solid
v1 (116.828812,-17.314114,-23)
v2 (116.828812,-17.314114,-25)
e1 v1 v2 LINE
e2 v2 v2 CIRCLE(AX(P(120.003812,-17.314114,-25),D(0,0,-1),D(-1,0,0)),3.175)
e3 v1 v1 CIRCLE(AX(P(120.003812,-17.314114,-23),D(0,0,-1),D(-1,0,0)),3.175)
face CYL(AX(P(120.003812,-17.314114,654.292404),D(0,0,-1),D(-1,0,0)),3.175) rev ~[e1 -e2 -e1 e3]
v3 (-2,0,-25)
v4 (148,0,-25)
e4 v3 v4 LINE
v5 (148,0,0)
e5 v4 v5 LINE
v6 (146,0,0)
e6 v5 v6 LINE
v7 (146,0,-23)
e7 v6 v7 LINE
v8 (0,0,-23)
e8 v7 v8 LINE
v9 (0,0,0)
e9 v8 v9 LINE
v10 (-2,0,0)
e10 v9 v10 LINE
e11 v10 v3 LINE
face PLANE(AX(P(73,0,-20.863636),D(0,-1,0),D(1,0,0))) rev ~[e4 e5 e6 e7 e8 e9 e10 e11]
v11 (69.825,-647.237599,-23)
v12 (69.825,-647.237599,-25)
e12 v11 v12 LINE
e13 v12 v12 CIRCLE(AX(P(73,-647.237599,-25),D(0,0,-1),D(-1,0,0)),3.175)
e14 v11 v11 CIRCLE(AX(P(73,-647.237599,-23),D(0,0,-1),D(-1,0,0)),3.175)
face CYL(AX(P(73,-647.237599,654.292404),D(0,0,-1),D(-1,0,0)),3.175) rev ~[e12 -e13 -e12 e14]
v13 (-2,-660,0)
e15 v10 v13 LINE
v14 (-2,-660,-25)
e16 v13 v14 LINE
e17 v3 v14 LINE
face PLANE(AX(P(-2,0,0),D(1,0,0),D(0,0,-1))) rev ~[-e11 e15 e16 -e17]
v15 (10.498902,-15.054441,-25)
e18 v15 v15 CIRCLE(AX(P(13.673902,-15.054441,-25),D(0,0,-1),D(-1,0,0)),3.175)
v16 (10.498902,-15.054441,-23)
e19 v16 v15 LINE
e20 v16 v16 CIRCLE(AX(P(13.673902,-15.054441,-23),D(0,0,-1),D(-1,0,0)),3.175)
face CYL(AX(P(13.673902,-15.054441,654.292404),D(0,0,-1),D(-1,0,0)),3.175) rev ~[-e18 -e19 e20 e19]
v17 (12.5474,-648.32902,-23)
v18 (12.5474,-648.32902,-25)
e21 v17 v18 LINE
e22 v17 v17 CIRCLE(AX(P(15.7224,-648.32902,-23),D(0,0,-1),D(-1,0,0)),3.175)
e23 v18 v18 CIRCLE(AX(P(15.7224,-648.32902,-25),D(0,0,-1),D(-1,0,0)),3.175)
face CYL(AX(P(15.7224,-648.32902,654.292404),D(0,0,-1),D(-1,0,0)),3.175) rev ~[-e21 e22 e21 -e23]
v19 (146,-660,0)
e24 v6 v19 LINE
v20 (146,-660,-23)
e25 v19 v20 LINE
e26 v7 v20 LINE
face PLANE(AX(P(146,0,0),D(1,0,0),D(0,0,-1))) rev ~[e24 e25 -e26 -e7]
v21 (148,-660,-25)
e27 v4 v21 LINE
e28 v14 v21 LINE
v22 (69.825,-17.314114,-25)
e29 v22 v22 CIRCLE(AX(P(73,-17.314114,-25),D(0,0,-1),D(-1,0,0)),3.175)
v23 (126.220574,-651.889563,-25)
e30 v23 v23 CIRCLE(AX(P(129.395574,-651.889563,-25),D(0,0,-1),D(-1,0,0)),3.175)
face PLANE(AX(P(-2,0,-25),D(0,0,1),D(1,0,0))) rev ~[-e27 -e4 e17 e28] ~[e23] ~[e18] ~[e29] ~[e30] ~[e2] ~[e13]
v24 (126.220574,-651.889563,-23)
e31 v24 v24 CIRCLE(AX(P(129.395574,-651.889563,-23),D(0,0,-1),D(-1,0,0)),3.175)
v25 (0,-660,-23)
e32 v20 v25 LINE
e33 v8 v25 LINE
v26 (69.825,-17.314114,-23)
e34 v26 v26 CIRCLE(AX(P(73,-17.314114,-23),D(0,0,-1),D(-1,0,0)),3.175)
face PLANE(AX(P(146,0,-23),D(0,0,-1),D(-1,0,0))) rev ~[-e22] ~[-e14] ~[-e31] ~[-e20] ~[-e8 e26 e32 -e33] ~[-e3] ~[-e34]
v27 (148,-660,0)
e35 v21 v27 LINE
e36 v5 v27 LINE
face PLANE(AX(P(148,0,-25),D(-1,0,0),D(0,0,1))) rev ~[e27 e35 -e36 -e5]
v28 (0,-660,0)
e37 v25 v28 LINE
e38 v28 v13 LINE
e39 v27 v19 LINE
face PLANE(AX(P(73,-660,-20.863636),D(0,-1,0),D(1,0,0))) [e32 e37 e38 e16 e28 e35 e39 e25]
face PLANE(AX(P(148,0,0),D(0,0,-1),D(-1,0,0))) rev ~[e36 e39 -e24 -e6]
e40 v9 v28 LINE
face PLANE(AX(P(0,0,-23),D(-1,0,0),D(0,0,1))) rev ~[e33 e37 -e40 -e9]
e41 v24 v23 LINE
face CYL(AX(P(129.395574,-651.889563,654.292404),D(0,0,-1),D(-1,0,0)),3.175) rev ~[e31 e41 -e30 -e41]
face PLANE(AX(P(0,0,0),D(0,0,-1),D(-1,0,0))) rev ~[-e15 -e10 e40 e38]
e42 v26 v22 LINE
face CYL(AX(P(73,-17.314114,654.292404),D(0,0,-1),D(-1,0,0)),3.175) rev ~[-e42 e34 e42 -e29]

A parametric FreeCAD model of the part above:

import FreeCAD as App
import Part
import Sketcher

V = App.Vector
Q = App.Units.Quantity

doc = App.newDocument("Part")
body = doc.addObject("PartDesign::Body", "Body")

# Sketch on XZ plane
sketch1 = body.newObject("Sketcher::SketchObject", "Sketch")
sketch1.AttachmentSupport = (doc.getObject("XZ_Plane"), [""])
sketch1.MapMode = "FlatFace"
sketch1.addGeometry(Part.LineSegment(V(0, -23, 0), V(0, 0, 0)), False)
sketch1.addGeometry(Part.LineSegment(V(0, 0, 0), V(-2, 0, 0)), False)
sketch1.addGeometry(Part.LineSegment(V(-2, 0, 0), V(-2, -25, 0)), False)
sketch1.addGeometry(Part.LineSegment(V(-2, -25, 0), V(148, -25, 0)), False)
sketch1.addGeometry(Part.LineSegment(V(148, -25, 0), V(148, 0, 0)), False)
sketch1.addGeometry(Part.LineSegment(V(148, 0, 0), V(146, 0, 0)), False)
sketch1.addGeometry(Part.LineSegment(V(146, 0, 0), V(146, -23, 0)), False)
sketch1.addGeometry(Part.LineSegment(V(146, -23, 0), V(0, -23, 0)), False)
sketch1.addConstraint(Sketcher.Constraint("Coincident", 0, 2, 1, 1))
sketch1.addConstraint(Sketcher.Constraint("Coincident", 1, 2, 2, 1))
sketch1.addConstraint(Sketcher.Constraint("Coincident", 2, 2, 3, 1))
sketch1.addConstraint(Sketcher.Constraint("Coincident", 3, 2, 4, 1))
sketch1.addConstraint(Sketcher.Constraint("Coincident", 4, 2, 5, 1))
sketch1.addConstraint(Sketcher.Constraint("Coincident", 5, 2, 6, 1))
sketch1.addConstraint(Sketcher.Constraint("Coincident", 6, 2, 7, 1))
sketch1.addConstraint(Sketcher.Constraint("Coincident", 7, 2, 0, 1))
sketch1.addConstraint(Sketcher.Constraint("Vertical", 0))
sketch1.addConstraint(Sketcher.Constraint("Horizontal", 1))
sketch1.addConstraint(Sketcher.Constraint("Vertical", 2))
sketch1.addConstraint(Sketcher.Constraint("Horizontal", 3))
sketch1.addConstraint(Sketcher.Constraint("Vertical", 4))
sketch1.addConstraint(Sketcher.Constraint("Horizontal", 5))
sketch1.addConstraint(Sketcher.Constraint("Vertical", 6))
sketch1.addConstraint(Sketcher.Constraint("Horizontal", 7))
sketch1.addConstraint(Sketcher.Constraint("Coincident", 0, 2, -1, 1))
sketch1.addConstraint(Sketcher.Constraint("PointOnObject", 4, 2, -1))
sketch1.addConstraint(Sketcher.Constraint("Equal", 1, 5))
sketch1.addConstraint(Sketcher.Constraint("DistanceX", 1, 2, 1, 1, Q("2 mm")))
sketch1.addConstraint(Sketcher.Constraint("DistanceX", 3, 1, 3, 2, Q("150 mm")))
sketch1.addConstraint(Sketcher.Constraint("DistanceY", 0, 1, 0, 2, Q("23 mm")))
sketch1.addConstraint(Sketcher.Constraint("DistanceY", 2, 2, 2, 1, Q("25 mm")))
pad1 = body.newObject("PartDesign::Pad", "Pad")
pad1.Profile = sketch1
pad1.Length = 660

# Sketch on XY plane
sketch2 = body.newObject("Sketcher::SketchObject", "Sketch001")
sketch2.AttachmentSupport = (doc.getObject("XY_Plane"), [""])
sketch2.MapMode = "FlatFace"
sketch2.AttachmentOffset = App.Placement(V(0, 0, -23), App.Rotation())
sketch2.addGeometry(Part.Circle(V(15.7, -648.3, 0), V(0, 0, 1), 3.2), False)
sketch2.addGeometry(Part.Circle(V(73, -647.2, 0), V(0, 0, 1), 3.2), False)
sketch2.addGeometry(Part.Circle(V(129.4, -651.9, 0), V(0, 0, 1), 3.2), False)
sketch2.addGeometry(Part.Circle(V(120, -17.3, 0), V(0, 0, 1), 3.2), False)
sketch2.addGeometry(Part.Circle(V(73, -17.3, 0), V(0, 0, 1), 3.2), False)
sketch2.addGeometry(Part.Circle(V(13.7, -15.1, 0), V(0, 0, 1), 3.2), False)
sketch2.addConstraint(Sketcher.Constraint("Equal", 0, 1))
sketch2.addConstraint(Sketcher.Constraint("Equal", 1, 2))
sketch2.addConstraint(Sketcher.Constraint("Equal", 2, 3))
sketch2.addConstraint(Sketcher.Constraint("Equal", 3, 4))
sketch2.addConstraint(Sketcher.Constraint("Equal", 4, 5))
sketch2.addConstraint(Sketcher.Constraint("Horizontal", 3, 3, 4, 3))
sketch2.addConstraint(Sketcher.Constraint("Vertical", 1, 3, 4, 3))
sketch2.addConstraint(Sketcher.Constraint("Diameter", 0, Q("6.35 mm")))
sketch2.addConstraint(Sketcher.Constraint("DistanceX", -1, 1, 1, 3, Q("73 mm")))
sketch2.addConstraint(Sketcher.Constraint("DistanceX", -1, 1, 0, 3, Q("15.7224 mm")))
sketch2.addConstraint(Sketcher.Constraint("DistanceY", 1, 3, -1, 1, Q("647.237599 mm")))
sketch2.addConstraint(Sketcher.Constraint("DistanceX", 5, 3, 4, 3, Q("59.326098 mm")))
sketch2.addConstraint(Sketcher.Constraint("DistanceY", 0, 3, -1, 1, Q("648.32902 mm")))
sketch2.addConstraint(Sketcher.Constraint("DistanceX", -1, 1, 3, 3, Q("120.003812 mm")))
sketch2.addConstraint(Sketcher.Constraint("DistanceY", 5, 3, -1, 1, Q("15.054441 mm")))
sketch2.addConstraint(Sketcher.Constraint("DistanceY", 2, 3, 3, 3, Q("634.575449 mm")))
sketch2.addConstraint(Sketcher.Constraint("DistanceY", 2, 3, 5, 3, Q("636.835122 mm")))
sketch2.addConstraint(Sketcher.Constraint("DistanceX", -1, 1, 2, 3, Q("129.395574 mm")))
doc.recompute()
hole = body.newObject("PartDesign::Hole", "Hole")
hole.Profile = sketch2
hole.ThreadType = "None"
hole.Diameter = 6.35
hole.DepthType = "ThroughAll"

doc.recompute()
